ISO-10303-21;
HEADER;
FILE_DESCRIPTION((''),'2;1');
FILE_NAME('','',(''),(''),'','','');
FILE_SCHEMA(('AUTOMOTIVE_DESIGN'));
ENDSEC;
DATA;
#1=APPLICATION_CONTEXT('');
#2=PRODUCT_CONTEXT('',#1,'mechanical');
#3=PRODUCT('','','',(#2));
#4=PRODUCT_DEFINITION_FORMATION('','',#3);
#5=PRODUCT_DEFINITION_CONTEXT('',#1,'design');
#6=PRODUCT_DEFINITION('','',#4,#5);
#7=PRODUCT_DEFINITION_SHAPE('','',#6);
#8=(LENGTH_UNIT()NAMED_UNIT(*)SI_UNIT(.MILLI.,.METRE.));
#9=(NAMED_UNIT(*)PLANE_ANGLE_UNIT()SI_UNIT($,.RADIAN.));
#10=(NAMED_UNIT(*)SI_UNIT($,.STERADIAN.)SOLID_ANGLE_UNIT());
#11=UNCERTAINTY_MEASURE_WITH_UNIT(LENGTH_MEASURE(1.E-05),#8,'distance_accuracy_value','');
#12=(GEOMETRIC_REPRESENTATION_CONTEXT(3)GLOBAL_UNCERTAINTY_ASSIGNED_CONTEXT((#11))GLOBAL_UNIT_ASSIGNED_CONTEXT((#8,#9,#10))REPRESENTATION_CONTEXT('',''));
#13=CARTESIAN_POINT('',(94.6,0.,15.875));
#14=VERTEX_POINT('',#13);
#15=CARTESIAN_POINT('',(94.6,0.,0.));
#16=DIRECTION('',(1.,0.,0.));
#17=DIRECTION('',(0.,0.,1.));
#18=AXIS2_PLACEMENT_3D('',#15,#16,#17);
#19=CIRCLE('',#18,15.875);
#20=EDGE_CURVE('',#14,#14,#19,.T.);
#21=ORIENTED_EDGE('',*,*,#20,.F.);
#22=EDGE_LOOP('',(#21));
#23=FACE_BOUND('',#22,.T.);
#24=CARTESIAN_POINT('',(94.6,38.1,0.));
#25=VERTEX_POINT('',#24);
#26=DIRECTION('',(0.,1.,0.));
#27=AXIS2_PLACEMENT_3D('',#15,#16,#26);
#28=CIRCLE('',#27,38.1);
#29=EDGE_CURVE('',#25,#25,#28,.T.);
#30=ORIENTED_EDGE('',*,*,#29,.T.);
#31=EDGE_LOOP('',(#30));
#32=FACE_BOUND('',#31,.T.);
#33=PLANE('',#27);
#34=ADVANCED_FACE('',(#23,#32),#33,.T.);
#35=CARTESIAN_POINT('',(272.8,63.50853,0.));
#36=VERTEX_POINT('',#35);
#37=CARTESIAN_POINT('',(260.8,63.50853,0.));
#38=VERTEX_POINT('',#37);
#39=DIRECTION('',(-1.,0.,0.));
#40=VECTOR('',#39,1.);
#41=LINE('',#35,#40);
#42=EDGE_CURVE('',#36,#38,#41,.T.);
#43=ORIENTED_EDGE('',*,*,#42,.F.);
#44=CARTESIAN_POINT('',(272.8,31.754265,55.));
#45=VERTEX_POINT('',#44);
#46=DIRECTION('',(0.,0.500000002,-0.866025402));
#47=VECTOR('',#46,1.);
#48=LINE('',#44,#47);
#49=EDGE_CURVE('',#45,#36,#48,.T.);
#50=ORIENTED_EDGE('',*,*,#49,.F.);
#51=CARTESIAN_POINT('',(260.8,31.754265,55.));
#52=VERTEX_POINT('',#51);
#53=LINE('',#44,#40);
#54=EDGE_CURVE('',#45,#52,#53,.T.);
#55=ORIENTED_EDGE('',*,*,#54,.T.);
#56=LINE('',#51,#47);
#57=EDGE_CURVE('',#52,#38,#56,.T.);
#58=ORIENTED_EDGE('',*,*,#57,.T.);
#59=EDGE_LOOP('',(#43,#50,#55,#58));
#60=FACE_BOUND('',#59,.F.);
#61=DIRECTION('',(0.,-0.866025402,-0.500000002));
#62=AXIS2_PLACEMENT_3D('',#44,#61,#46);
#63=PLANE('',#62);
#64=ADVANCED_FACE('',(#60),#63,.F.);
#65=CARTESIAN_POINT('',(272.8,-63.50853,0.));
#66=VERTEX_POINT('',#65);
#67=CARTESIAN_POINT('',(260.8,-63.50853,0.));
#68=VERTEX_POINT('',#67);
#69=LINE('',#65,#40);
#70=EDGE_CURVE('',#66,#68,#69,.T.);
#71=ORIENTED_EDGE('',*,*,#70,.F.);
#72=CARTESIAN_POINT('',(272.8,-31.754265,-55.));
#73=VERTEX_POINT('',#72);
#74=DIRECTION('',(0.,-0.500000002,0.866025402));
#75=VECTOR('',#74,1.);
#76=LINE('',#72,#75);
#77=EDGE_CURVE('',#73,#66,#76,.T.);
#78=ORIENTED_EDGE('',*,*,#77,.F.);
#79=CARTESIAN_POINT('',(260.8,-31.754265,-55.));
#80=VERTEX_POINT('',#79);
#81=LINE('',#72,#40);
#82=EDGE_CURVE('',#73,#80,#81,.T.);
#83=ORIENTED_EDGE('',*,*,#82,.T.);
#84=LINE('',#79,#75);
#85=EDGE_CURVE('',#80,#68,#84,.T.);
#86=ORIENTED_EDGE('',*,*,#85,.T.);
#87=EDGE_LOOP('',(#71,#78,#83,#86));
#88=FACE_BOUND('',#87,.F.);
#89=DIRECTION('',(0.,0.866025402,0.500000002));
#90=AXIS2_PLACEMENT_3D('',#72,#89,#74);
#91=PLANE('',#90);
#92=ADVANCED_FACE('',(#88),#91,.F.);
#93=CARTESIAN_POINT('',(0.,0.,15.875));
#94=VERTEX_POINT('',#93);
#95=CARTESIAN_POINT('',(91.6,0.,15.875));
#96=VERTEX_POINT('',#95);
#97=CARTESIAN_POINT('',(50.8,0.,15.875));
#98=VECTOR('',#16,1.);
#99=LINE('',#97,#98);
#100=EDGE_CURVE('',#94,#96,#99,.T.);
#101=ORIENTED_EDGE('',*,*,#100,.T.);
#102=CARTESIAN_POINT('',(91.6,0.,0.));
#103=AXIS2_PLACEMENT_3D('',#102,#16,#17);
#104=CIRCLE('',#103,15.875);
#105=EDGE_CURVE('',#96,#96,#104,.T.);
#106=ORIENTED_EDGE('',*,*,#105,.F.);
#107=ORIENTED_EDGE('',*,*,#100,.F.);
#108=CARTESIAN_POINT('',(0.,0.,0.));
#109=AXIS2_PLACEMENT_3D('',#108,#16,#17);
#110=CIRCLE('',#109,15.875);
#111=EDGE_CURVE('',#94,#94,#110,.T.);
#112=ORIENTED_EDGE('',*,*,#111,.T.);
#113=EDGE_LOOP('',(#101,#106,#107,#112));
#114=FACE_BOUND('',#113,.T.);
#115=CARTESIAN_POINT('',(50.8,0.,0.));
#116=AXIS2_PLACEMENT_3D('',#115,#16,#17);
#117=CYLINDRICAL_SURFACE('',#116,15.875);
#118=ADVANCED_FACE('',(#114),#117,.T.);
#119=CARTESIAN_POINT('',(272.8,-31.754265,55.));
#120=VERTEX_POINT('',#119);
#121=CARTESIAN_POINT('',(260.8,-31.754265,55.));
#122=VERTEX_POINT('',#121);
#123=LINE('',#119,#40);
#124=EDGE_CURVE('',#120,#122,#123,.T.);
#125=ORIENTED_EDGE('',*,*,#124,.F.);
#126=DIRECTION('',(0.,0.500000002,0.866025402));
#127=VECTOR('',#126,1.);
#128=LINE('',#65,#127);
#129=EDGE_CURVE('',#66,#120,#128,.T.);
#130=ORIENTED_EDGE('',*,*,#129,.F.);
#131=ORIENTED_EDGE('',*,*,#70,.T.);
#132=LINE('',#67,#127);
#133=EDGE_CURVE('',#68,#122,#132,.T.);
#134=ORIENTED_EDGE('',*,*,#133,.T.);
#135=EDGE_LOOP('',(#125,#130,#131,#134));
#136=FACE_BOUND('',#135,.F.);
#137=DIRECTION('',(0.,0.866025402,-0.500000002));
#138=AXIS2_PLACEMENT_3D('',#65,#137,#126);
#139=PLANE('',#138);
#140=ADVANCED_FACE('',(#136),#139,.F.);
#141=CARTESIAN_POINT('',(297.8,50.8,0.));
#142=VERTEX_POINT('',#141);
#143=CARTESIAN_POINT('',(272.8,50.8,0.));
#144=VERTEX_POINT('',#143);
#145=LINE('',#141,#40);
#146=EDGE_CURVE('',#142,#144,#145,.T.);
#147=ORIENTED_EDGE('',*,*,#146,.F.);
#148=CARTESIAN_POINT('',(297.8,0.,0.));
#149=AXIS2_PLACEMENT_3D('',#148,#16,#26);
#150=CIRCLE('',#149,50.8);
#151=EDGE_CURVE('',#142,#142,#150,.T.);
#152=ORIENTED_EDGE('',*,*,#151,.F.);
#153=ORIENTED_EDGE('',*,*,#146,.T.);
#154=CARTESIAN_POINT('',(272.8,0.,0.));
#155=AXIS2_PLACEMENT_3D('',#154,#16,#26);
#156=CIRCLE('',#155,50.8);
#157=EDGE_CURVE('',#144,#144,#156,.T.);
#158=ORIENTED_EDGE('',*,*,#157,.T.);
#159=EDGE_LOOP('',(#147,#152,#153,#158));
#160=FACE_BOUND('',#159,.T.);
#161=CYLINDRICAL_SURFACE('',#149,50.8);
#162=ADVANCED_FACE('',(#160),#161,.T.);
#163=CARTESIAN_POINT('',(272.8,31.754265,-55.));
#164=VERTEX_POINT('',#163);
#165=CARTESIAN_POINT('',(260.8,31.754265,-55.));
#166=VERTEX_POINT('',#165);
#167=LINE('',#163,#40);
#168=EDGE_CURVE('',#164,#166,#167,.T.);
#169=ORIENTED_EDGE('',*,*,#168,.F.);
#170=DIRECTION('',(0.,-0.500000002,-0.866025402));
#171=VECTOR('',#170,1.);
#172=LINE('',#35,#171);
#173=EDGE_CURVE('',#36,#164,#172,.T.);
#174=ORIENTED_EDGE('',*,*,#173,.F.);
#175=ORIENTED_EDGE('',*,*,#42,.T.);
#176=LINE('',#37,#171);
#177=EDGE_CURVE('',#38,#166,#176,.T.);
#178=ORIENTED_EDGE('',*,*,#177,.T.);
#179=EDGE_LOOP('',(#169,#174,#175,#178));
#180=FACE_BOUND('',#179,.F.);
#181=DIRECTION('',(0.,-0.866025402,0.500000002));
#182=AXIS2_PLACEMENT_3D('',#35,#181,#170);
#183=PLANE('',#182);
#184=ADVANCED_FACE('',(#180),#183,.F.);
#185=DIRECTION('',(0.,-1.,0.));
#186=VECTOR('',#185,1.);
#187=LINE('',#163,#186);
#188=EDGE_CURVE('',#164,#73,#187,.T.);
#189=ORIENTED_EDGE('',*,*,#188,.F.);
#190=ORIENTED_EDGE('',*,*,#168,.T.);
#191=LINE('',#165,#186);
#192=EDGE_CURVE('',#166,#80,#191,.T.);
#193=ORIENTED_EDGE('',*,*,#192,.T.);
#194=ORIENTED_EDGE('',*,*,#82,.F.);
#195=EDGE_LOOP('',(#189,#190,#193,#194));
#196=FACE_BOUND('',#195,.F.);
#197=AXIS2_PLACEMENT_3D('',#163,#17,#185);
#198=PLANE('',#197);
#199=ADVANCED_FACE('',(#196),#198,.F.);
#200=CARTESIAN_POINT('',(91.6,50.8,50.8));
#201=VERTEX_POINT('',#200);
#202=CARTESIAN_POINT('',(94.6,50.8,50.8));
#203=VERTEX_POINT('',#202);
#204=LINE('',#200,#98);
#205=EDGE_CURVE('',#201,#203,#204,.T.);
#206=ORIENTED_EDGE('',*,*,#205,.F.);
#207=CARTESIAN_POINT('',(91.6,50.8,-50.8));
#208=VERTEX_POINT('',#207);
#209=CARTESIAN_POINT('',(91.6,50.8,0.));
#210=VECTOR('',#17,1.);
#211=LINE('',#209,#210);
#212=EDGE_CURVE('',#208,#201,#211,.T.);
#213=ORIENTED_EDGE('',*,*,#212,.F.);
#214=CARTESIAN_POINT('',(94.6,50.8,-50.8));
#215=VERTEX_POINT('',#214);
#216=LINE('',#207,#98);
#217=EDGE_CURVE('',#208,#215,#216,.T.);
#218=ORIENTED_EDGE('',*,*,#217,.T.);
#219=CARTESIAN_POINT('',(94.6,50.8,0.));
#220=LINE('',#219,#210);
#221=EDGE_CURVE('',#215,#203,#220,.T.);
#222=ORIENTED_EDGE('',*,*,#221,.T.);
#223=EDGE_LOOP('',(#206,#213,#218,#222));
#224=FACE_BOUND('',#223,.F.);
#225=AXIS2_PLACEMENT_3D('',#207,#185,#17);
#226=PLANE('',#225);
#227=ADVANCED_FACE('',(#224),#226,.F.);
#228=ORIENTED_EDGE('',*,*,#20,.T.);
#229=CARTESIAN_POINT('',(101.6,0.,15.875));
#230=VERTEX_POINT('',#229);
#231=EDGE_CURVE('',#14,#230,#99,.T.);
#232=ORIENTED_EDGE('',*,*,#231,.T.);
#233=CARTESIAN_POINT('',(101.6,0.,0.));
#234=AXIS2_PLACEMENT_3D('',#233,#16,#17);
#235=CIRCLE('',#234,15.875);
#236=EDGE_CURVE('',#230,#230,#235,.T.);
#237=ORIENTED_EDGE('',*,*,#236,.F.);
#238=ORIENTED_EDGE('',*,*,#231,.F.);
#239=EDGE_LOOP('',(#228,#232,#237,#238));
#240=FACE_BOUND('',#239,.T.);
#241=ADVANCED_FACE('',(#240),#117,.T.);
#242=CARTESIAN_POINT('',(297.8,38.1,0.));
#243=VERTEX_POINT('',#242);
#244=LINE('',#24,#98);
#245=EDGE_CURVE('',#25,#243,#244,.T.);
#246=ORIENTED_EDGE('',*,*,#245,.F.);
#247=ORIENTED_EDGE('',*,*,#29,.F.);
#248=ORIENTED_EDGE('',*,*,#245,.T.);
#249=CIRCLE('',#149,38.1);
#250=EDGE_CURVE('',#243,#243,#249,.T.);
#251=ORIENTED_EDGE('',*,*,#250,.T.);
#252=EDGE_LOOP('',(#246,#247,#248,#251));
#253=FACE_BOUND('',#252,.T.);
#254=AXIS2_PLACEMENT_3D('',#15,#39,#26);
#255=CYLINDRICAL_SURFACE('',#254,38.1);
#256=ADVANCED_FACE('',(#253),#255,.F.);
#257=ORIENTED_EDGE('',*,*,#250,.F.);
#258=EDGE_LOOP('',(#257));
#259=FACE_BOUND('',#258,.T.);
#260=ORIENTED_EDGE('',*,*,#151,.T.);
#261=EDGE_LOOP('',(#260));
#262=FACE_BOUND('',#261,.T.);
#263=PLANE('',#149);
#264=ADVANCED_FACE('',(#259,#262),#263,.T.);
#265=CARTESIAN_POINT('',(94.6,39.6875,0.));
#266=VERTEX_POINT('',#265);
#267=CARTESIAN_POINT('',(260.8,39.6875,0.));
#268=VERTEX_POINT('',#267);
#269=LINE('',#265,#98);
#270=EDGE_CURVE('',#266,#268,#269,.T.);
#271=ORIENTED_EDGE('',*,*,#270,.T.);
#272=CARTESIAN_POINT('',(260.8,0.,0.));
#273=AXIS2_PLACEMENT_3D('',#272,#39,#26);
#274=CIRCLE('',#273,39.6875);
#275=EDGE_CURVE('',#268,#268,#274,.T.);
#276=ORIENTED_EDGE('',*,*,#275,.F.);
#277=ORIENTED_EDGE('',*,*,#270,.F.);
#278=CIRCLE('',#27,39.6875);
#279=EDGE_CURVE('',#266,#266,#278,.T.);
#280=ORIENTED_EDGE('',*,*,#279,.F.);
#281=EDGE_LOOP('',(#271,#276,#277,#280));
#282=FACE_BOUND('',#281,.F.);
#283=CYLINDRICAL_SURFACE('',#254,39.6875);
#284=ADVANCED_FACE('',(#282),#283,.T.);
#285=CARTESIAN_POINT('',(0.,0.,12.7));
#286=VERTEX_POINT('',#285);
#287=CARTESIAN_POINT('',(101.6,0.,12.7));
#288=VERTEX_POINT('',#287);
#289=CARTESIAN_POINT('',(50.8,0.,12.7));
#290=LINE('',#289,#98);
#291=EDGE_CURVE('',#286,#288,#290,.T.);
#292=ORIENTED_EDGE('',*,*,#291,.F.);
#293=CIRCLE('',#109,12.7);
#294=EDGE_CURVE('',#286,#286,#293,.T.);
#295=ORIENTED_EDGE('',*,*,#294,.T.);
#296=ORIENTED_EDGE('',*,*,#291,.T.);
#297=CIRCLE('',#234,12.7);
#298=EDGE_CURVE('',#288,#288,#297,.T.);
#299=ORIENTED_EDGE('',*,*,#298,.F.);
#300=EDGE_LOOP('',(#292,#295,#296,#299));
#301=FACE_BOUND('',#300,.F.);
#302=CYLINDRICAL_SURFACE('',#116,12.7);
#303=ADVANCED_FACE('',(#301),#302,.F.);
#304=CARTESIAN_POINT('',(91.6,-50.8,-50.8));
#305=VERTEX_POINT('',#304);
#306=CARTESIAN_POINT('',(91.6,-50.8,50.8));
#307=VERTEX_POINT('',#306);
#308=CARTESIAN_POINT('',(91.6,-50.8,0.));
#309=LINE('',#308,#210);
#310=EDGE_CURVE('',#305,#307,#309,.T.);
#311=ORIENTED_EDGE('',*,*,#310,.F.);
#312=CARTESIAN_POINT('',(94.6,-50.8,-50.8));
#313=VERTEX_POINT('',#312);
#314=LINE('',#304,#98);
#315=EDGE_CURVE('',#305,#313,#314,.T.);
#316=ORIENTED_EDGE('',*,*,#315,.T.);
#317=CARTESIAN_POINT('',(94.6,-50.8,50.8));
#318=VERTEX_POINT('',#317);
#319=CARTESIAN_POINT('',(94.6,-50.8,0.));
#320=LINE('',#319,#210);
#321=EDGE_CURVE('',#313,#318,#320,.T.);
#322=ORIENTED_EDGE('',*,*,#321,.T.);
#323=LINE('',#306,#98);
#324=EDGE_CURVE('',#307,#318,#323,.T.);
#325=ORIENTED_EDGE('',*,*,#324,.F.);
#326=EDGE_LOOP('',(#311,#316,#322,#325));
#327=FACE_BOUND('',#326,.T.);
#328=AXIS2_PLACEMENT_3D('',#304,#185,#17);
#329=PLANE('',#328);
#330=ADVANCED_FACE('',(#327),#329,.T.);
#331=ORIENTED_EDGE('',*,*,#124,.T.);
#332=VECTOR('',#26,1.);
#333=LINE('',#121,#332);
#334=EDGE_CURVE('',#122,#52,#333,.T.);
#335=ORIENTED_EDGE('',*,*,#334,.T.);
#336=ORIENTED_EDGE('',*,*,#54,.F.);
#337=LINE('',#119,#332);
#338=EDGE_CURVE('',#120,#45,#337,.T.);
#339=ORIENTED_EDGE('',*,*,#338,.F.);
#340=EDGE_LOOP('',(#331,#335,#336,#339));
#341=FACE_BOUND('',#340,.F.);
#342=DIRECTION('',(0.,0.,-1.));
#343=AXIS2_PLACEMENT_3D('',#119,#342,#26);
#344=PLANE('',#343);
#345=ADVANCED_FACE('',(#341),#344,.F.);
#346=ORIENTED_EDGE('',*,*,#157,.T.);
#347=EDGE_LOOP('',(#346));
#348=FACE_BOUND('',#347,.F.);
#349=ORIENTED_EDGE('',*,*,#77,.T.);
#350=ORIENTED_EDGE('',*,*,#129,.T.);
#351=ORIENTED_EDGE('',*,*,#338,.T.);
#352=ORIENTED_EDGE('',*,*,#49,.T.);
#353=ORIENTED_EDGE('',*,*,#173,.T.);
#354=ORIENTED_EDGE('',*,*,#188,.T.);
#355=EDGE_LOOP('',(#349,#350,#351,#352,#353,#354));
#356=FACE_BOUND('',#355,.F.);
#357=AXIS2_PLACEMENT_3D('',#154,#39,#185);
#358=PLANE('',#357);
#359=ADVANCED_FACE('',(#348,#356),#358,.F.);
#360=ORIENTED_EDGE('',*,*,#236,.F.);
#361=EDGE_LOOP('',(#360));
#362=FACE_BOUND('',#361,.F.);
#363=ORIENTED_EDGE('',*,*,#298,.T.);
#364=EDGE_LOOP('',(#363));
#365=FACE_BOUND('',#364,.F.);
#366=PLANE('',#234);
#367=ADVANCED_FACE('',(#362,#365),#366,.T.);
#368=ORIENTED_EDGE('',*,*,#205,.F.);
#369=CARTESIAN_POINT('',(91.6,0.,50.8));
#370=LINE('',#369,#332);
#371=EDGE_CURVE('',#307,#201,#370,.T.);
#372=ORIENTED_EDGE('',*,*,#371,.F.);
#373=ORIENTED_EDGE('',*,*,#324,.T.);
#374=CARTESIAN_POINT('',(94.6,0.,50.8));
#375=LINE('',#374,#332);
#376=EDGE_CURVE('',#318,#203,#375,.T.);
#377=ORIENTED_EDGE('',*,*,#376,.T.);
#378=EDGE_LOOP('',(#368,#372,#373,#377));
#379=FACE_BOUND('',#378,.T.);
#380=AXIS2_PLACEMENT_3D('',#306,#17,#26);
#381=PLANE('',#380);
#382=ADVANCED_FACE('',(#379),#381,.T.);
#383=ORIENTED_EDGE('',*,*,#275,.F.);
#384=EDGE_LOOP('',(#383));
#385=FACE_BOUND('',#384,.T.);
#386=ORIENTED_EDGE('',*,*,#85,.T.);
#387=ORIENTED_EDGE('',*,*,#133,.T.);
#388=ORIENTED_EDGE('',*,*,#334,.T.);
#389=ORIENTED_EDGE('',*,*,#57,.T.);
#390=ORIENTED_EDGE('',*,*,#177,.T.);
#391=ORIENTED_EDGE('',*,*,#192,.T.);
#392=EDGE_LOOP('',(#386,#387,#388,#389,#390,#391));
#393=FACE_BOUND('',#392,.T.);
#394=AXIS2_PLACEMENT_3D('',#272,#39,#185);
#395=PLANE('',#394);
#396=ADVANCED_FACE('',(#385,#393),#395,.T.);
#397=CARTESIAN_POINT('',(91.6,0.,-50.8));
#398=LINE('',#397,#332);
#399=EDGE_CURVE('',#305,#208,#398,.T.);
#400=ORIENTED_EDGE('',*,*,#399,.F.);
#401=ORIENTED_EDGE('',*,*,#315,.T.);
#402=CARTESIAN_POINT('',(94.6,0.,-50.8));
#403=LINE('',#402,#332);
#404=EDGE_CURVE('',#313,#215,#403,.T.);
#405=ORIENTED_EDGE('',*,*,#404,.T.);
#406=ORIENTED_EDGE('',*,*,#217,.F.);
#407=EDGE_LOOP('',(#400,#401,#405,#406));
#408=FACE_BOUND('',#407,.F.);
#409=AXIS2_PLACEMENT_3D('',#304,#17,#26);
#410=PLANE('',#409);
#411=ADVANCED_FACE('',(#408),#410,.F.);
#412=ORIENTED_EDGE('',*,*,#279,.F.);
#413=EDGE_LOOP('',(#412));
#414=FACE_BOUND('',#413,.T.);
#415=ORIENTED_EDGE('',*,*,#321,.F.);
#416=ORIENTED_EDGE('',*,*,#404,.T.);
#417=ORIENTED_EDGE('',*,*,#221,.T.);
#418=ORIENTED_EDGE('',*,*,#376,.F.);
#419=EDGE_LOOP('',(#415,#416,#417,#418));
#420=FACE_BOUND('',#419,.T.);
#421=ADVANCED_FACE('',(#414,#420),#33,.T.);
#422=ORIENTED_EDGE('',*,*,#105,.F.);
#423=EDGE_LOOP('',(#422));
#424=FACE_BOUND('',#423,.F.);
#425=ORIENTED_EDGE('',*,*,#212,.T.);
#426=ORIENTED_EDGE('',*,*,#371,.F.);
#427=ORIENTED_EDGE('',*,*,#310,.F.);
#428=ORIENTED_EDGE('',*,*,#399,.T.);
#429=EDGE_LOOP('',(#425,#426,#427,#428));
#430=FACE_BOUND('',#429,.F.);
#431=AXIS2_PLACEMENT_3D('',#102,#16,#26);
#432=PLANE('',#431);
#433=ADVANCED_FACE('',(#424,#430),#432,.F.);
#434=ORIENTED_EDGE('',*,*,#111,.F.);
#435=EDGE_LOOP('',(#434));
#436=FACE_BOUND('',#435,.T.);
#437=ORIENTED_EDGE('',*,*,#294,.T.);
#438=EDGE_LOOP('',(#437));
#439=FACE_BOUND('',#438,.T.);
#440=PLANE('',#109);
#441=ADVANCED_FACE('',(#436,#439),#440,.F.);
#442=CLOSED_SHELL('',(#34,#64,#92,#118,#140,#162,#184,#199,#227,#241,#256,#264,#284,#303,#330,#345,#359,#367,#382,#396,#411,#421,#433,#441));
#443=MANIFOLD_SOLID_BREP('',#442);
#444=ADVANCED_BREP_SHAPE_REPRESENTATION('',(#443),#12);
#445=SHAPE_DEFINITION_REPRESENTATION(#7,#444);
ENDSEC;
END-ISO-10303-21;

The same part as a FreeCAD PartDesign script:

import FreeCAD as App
import Part
import Sketcher
from FreeCAD import Vector
Q = App.Units.Quantity


def add_polygon(sketch, points):
    """Adds a closed chain of lines whose ends are joined by coincident constraints."""
    first, n = sketch.GeometryCount, len(points)
    for a, b in zip(points, points[1:] + points[:1]):
        sketch.addGeometry(Part.LineSegment(App.Vector(*a, 0), App.Vector(*b, 0)), False)
    for i in range(n):
        sketch.addConstraint(Sketcher.Constraint("Coincident", first + i, 2, first + (i + 1) % n, 1))

doc = App.newDocument("Part")
body = doc.addObject("PartDesign::Body", "Body")

sketch1 = doc.addObject("Sketcher::SketchObject", "Sketch")
body.addObject(sketch1)
sketch1.AttachmentSupport = (doc.XZ_Plane, [""])
sketch1.MapMode = "FlatFace"
add_polygon(sketch1, [(0, 15.9), (0, 12.7), (101.6, 12.7), (101.6, 15.9)])
sketch1.addConstraint([
    Sketcher.Constraint("Vertical", 0),
    Sketcher.Constraint("Horizontal", 1),
    Sketcher.Constraint("Vertical", 2),
    Sketcher.Constraint("Horizontal", 3),
    Sketcher.Constraint("PointOnObject", 0, 2, -2),
    Sketcher.Constraint("DistanceX", 1, 1, 1, 2, Q("4 in")),
    Sketcher.Constraint("DistanceY", -1, 1, 0, 2, Q("0.5 in")),
    Sketcher.Constraint("DistanceY", 0, 2, 0, 1, Q("0.125 in")),
])
revolution = doc.addObject("PartDesign::Revolution", "Revolution")
body.addObject(revolution)
revolution.Profile = sketch1
revolution.ReferenceAxis = (sketch1, ["H_Axis"])
revolution.Angle = 360

sketch2 = doc.addObject("Sketcher::SketchObject", "Sketch001")
body.addObject(sketch2)
sketch2.AttachmentSupport = (doc.YZ_Plane, [""])
sketch2.MapMode = "FlatFace"
sketch2.AttachmentOffset = App.Placement(Vector(0, 0, 91.6), App.Rotation())
add_polygon(sketch2, [(-51, 51), (-51, -51), (51, -51), (51, 51)])
sketch2.addGeometry(Part.Circle(Vector(0, 0, 0), Vector(0, 0, 1), 14), False)
sketch2.addConstraint([
    Sketcher.Constraint("Vertical", 0),
    Sketcher.Constraint("Horizontal", 1),
    Sketcher.Constraint("Vertical", 2),
    Sketcher.Constraint("Horizontal", 3),
    Sketcher.Constraint("Coincident", 4, 3, -1, 1),
    Sketcher.Constraint("Symmetric", 0, 2, 2, 2, -1, 1),
    Sketcher.Constraint("Equal", 3, 0),
    Sketcher.Constraint("DistanceX", 1, 1, 1, 2, Q("4 in")),
    Sketcher.Constraint("Diameter", 4, Q("1.125 in")),
])
pad1 = doc.addObject("PartDesign::Pad", "Pad")
body.addObject(pad1)
pad1.Profile = sketch2
pad1.Length = 3

sketch3 = doc.addObject("Sketcher::SketchObject", "Sketch002")
body.addObject(sketch3)
sketch3.AttachmentSupport = (doc.YZ_Plane, [""])
sketch3.MapMode = "FlatFace"
sketch3.AttachmentOffset = App.Placement(Vector(0, 0, 94.6), App.Rotation())
sketch3.addGeometry([
    Part.Circle(Vector(0, 0, 0), Vector(0, 0, 1), 40),
    Part.Circle(Vector(0, 0, 0), Vector(0, 0, 1), 38),
], False)
sketch3.addConstraint([
    Sketcher.Constraint("Coincident", 0, 3, -1, 1),
    Sketcher.Constraint("Coincident", 1, 3, -1, 1),
    Sketcher.Constraint("Diameter", 1, Q("3 in")),
    Sketcher.Constraint("Diameter", 0, Q("3.125 in")),
])
pad2 = doc.addObject("PartDesign::Pad", "Pad001")
body.addObject(pad2)
pad2.Profile = sketch3
pad2.Length = Q("8 in")

sketch4 = doc.addObject("Sketcher::SketchObject", "Sketch003")
body.addObject(sketch4)
sketch4.AttachmentSupport = (doc.YZ_Plane, [""])
sketch4.MapMode = "FlatFace"
sketch4.AttachmentOffset = App.Placement(Vector(0, 0, 297.8), App.Rotation())
sketch4.addGeometry([
    Part.Circle(Vector(0, 0, 0), Vector(0, 0, 1), 51),
    Part.Circle(Vector(0, 0, 0), Vector(0, 0, 1), 40),
], False)
sketch4.addConstraint([
    Sketcher.Constraint("Coincident", 0, 3, -1, 1),
    Sketcher.Constraint("Coincident", 1, 3, -1, 1),
    Sketcher.Constraint("Diameter", 0, Q("4 in")),
    Sketcher.Constraint("Diameter", 1, Q("3.125 in")),
])
pad3 = doc.addObject("PartDesign::Pad", "Pad002")
body.addObject(pad3)
pad3.Profile = sketch4
pad3.Length = 25
pad3.Reversed = True

sketch5 = doc.addObject("Sketcher::SketchObject", "Sketch004")
body.addObject(sketch5)
sketch5.AttachmentSupport = (doc.YZ_Plane, [""])
sketch5.MapMode = "FlatFace"
sketch5.AttachmentOffset = App.Placement(Vector(0, 0, 272.8), App.Rotation())
add_polygon(sketch5, [(-64, 0), (-32, 55), (32, 55), (64, 0), (32, -55), (-32, -55)])
sketch5.addGeometry(Part.Circle(Vector(0, 0, 0), Vector(0, 0, 1), 40), False)
sketch5.addConstraint([
    Sketcher.Constraint("Horizontal", 1),
    Sketcher.Constraint("Horizontal", 4),
    Sketcher.Constraint("Coincident", 6, 3, -1, 1),
    Sketcher.Constraint("Symmetric", 0, 2, 3, 2, -1, 1),
    Sketcher.Constraint("Symmetric", 2, 2, 5, 2, -1, 1),
    Sketcher.Constraint("PointOnObject", 2, 2, -1),
    Sketcher.Constraint("Parallel", 2, 5),
    Sketcher.Constraint("Vertical", 1, 2, 3, 2),
    Sketcher.Constraint("Angle", 0, Q("60 deg")),
    Sketcher.Constraint("Diameter", 6, Q("79.336 mm")),
    Sketcher.Constraint("DistanceX", 1, 1, 1, 2, Q("63.50853 mm")),
    Sketcher.Constraint("DistanceY", -1, 1, 0, 2, Q("55 mm")),
])
pad4 = doc.addObject("PartDesign::Pad", "Pad003")
body.addObject(pad4)
pad4.Profile = sketch5
pad4.Length = 12
pad4.Reversed = True

doc.recompute()
